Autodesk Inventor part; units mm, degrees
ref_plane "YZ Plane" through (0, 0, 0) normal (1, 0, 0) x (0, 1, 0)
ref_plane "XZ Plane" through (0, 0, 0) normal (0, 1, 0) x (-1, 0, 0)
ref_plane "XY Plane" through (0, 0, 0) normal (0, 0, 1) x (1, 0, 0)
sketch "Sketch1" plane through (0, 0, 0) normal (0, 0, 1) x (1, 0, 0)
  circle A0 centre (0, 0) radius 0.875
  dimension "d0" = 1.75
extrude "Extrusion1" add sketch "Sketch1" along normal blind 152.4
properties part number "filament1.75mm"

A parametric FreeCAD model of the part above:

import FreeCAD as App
import Part
import Sketcher

V = App.Vector
Q = App.Units.Quantity

doc = App.newDocument("Part")
body = doc.addObject("PartDesign::Body", "Body")

sketch1 = body.newObject("Sketcher::SketchObject", "Sketch")
sketch1.AttachmentSupport = (doc.getObject("XY_Plane"), [""])
sketch1.MapMode = "FlatFace"
sketch1.addGeometry(Part.Circle(V(0, 0, 0), V(0, 0, 1), 0.875), False)
sketch1.addConstraint([
    Sketcher.Constraint("Coincident", 0, 3, -1, 1),
    Sketcher.Constraint("Diameter", 0, Q("0.0689 in")),
])
pad1 = body.newObject("PartDesign::Pad", "Pad")
pad1.Profile = sketch1
pad1.Length = Q("6 in")

doc.recompute()
